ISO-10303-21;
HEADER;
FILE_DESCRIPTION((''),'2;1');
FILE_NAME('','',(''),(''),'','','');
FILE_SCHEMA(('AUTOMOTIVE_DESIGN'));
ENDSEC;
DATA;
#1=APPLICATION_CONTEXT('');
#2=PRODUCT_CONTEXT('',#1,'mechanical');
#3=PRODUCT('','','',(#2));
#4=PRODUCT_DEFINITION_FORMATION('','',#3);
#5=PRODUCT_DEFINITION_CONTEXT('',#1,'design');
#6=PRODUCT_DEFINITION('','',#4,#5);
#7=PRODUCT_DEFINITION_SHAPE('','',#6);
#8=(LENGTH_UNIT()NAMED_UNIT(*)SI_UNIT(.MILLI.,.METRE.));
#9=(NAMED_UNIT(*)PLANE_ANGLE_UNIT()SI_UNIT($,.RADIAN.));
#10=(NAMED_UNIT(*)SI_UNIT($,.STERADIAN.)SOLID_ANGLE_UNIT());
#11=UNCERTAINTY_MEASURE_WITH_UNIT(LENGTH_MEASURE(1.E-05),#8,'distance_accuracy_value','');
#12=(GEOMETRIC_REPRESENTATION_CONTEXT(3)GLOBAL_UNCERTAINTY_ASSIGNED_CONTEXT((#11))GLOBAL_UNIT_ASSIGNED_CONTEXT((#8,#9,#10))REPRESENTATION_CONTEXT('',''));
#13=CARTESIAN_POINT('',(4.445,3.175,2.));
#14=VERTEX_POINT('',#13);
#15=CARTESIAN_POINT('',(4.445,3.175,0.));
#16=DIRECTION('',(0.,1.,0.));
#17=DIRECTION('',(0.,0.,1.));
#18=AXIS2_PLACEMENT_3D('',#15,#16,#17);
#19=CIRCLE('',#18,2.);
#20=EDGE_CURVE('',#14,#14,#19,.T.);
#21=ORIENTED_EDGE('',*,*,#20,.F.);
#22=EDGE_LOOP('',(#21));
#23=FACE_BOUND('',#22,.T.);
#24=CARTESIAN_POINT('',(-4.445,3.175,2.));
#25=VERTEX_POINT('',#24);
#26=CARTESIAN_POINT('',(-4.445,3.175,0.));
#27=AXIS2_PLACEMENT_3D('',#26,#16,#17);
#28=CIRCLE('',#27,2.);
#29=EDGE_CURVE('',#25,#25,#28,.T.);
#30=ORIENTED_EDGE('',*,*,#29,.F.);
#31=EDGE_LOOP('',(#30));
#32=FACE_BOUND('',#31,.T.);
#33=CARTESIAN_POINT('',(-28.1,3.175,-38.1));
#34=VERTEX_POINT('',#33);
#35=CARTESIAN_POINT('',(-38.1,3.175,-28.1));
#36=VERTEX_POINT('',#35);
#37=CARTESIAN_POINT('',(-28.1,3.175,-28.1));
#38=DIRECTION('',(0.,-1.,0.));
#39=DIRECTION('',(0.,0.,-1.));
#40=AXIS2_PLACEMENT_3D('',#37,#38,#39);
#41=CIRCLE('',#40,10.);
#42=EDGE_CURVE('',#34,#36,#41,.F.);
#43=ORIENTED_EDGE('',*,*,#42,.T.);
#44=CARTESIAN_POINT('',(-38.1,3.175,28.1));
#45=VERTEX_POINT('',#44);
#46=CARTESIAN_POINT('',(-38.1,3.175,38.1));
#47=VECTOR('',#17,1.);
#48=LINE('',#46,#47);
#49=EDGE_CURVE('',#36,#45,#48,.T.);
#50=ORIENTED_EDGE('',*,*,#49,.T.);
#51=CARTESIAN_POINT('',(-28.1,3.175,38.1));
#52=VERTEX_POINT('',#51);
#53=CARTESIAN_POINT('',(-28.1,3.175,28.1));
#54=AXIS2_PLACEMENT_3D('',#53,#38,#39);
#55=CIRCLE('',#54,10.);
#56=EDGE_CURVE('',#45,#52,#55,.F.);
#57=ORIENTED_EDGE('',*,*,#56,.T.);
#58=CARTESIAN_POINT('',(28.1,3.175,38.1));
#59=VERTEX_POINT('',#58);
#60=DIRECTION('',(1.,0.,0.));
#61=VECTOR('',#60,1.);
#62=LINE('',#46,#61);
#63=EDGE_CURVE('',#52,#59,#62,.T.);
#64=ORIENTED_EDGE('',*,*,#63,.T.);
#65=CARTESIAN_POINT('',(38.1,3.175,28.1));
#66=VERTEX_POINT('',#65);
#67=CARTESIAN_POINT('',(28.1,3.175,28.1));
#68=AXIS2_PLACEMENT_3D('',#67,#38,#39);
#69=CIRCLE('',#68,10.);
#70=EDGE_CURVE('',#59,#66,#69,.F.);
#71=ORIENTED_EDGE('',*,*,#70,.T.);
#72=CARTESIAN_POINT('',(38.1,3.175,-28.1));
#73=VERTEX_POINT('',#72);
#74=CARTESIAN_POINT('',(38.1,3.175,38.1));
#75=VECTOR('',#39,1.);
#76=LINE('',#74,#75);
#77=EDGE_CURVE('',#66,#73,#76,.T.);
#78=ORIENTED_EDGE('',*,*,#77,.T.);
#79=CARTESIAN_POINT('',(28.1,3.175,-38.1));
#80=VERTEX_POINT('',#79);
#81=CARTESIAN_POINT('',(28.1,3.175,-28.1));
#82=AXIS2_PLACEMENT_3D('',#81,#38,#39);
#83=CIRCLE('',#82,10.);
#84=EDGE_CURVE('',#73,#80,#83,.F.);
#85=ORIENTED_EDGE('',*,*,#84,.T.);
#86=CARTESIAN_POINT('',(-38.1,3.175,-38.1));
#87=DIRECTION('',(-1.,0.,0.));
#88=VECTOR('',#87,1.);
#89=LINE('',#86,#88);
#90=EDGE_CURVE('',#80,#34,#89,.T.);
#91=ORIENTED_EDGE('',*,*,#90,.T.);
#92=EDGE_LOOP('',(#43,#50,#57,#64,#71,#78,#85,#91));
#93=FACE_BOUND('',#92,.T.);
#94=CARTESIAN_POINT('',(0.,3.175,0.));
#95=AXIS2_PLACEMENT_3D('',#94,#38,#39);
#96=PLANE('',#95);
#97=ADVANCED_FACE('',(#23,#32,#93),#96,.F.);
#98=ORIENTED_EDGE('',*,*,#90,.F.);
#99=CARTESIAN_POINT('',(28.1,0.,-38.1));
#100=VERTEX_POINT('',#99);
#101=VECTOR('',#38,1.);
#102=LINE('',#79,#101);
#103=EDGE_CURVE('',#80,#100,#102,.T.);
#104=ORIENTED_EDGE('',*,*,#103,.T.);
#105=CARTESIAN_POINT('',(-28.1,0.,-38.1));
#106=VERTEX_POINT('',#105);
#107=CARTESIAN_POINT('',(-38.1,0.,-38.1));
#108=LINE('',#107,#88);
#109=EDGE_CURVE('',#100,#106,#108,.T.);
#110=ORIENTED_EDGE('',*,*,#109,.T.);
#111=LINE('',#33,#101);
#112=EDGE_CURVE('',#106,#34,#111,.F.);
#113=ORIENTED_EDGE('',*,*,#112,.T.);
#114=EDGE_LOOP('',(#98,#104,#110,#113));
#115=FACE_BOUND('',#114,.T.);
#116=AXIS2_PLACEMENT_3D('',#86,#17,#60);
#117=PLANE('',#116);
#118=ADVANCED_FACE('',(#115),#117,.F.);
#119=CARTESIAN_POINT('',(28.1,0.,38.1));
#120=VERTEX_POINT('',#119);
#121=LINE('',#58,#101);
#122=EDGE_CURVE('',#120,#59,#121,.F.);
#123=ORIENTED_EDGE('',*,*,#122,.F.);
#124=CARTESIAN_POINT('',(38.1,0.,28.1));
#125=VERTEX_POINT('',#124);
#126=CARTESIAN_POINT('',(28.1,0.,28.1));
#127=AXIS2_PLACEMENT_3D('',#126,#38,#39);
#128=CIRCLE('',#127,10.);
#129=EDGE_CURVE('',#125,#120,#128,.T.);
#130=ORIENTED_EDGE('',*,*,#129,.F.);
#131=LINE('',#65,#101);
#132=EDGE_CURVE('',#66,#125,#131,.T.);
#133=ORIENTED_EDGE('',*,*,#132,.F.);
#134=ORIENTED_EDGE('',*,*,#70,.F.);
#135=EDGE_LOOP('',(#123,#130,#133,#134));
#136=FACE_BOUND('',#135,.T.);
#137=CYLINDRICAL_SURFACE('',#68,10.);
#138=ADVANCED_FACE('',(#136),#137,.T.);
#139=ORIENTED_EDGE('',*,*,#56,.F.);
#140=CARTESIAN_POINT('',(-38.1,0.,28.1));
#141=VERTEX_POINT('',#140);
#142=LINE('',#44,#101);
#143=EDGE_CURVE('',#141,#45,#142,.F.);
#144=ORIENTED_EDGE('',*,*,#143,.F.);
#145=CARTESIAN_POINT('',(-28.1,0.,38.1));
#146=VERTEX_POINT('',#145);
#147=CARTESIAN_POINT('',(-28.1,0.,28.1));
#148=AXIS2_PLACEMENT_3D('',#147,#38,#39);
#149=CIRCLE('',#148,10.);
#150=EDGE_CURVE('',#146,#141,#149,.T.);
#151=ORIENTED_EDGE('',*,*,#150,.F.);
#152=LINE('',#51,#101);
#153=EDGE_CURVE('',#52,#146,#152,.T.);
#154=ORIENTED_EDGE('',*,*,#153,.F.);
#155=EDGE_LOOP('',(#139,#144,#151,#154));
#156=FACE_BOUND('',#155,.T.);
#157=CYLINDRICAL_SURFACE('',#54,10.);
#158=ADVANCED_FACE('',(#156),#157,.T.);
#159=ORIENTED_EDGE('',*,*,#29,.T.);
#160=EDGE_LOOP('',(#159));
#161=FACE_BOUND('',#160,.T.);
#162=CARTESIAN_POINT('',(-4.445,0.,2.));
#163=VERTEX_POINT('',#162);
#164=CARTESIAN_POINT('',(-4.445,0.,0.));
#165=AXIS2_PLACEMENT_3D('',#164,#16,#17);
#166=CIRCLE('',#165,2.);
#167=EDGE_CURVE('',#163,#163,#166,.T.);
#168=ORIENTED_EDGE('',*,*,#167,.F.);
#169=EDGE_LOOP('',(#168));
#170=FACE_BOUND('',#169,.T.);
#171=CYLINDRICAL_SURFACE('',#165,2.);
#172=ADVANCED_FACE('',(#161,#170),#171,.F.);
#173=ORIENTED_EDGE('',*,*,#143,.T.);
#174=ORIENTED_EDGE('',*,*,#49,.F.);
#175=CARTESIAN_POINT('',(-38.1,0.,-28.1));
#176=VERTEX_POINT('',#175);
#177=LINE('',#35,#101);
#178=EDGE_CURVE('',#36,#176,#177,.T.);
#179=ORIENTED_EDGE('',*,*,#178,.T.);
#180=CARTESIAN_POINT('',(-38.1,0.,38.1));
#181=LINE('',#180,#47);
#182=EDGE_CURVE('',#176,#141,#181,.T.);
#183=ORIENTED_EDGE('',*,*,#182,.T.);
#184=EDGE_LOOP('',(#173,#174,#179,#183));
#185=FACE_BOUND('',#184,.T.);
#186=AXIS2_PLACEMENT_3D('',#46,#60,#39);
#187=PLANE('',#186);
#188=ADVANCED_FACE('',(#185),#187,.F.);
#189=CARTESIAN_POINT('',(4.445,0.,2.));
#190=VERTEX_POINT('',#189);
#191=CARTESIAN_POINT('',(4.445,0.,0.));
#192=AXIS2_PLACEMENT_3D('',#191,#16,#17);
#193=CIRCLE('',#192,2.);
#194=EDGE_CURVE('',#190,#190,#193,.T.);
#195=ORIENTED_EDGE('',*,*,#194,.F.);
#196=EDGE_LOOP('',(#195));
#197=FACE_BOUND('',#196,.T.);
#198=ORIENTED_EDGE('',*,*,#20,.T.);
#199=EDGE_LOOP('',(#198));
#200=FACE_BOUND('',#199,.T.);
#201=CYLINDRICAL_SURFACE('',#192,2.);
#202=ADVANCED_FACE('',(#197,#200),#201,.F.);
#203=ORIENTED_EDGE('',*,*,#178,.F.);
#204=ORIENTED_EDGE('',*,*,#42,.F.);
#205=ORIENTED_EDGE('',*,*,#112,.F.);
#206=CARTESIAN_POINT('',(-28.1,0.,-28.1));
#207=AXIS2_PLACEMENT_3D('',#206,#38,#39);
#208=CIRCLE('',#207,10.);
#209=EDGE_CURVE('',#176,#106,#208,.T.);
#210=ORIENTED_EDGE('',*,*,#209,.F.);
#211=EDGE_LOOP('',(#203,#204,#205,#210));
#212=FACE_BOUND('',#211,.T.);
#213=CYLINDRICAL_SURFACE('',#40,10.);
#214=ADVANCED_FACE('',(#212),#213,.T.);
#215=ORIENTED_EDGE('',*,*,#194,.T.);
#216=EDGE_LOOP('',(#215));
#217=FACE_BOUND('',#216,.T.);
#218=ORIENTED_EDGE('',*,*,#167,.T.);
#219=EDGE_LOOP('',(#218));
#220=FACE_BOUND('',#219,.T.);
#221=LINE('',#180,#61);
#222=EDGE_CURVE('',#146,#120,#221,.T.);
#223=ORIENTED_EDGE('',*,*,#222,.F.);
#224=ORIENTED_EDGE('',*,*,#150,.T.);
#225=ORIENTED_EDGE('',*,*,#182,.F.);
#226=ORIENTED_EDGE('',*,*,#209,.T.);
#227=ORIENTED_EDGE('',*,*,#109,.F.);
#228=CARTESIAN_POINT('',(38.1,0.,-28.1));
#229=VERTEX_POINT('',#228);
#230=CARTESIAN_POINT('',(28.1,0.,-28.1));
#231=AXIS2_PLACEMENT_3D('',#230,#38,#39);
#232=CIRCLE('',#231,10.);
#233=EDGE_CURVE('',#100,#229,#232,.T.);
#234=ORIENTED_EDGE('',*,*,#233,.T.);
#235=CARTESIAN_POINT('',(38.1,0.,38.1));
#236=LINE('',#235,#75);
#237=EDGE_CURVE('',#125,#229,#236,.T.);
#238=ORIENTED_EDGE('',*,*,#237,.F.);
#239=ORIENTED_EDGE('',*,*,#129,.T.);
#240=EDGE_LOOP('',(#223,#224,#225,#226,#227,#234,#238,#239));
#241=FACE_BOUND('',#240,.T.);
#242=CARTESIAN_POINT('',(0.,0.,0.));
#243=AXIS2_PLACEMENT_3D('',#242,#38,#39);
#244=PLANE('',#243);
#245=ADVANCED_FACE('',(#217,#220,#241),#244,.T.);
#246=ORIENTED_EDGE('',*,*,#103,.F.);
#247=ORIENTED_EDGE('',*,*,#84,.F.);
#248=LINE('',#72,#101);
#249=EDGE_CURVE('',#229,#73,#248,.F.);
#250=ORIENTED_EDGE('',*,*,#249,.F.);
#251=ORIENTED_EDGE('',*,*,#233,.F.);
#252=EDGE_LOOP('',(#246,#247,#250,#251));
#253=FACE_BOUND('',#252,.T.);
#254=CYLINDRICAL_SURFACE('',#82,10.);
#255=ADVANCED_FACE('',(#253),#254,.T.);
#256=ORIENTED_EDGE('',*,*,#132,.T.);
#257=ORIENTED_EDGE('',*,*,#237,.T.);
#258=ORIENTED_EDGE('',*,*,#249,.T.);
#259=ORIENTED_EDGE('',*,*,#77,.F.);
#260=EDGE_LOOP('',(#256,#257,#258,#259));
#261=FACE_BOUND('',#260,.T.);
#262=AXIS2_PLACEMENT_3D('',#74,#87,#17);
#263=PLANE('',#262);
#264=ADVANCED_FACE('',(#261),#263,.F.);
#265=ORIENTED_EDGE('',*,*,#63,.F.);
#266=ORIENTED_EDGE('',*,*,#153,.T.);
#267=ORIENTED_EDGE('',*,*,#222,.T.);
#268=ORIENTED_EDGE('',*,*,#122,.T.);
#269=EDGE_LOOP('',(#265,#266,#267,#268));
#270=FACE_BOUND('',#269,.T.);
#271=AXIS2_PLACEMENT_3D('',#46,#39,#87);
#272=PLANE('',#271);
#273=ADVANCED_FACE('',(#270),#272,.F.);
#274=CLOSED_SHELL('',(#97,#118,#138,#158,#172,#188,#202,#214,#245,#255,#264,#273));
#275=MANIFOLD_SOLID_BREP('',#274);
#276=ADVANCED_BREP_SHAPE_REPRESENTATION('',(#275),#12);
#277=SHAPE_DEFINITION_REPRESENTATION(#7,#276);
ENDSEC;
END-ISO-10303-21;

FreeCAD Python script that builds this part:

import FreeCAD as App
import Part
import Sketcher
Q = App.Units.Quantity


def edges_at(feature, points):
    """Names of the edges that pass closest to the given points."""
    edges = feature.Shape.Edges
    near = lambda p: min(range(len(edges)), key=lambda i: edges[i].distToShape(Part.Vertex(*p))[0])
    return sorted({f"Edge{near(p) + 1}" for p in points})

doc = App.newDocument("Part")
body = doc.addObject("PartDesign::Body", "Body")

# Sketch on XZ plane
sketch1 = doc.addObject("Sketcher::SketchObject", "Sketch")
body.addObject(sketch1)
sketch1.AttachmentSupport = (doc.XZ_Plane, [""])
sketch1.MapMode = "FlatFace"
sketch1.addGeometry(Part.LineSegment(App.Vector(-38, -38, 0), App.Vector(-38, 38, 0)), False)
sketch1.addGeometry(Part.LineSegment(App.Vector(-38, 38, 0), App.Vector(38, 38, 0)), False)
sketch1.addGeometry(Part.LineSegment(App.Vector(38, 38, 0), App.Vector(38, -38, 0)), False)
sketch1.addGeometry(Part.LineSegment(App.Vector(38, -38, 0), App.Vector(-38, -38, 0)), False)
sketch1.addConstraint(Sketcher.Constraint("Coincident", 0, 2, 1, 1))
sketch1.addConstraint(Sketcher.Constraint("Coincident", 1, 2, 2, 1))
sketch1.addConstraint(Sketcher.Constraint("Coincident", 2, 2, 3, 1))
sketch1.addConstraint(Sketcher.Constraint("Coincident", 3, 2, 0, 1))
sketch1.addConstraint(Sketcher.Constraint("Vertical", 0))
sketch1.addConstraint(Sketcher.Constraint("Horizontal", 1))
sketch1.addConstraint(Sketcher.Constraint("Vertical", 2))
sketch1.addConstraint(Sketcher.Constraint("Horizontal", 3))
sketch1.addConstraint(Sketcher.Constraint("Symmetric", 0, 2, 2, 2, -1, 1))
sketch1.addConstraint(Sketcher.Constraint("Equal", 3, 0))
sketch1.addConstraint(Sketcher.Constraint("DistanceX", 1, 1, 1, 2, Q("76.2 mm")))
pad1 = doc.addObject("PartDesign::Pad", "Pad")
body.addObject(pad1)
pad1.Profile = sketch1
pad1.Length = 3.175
pad1.Reversed = True
doc.recompute()

fillet = doc.addObject("PartDesign::Fillet", "Fillet")
body.addObject(fillet)
fillet.Base = (pad1, edges_at(pad1, [(-38.1, 1.587, 38.1)]))
fillet.Radius = 10
doc.recompute()

fillet2 = doc.addObject("PartDesign::Fillet", "Fillet001")
body.addObject(fillet2)
fillet2.Base = (fillet, edges_at(fillet, [(-38.1, 1.587, -38.1)]))
fillet2.Radius = 10
doc.recompute()

fillet3 = doc.addObject("PartDesign::Fillet", "Fillet002")
body.addObject(fillet3)
fillet3.Base = (fillet2, edges_at(fillet2, [(38.1, 1.587, -38.1)]))
fillet3.Radius = 10
doc.recompute()

fillet4 = doc.addObject("PartDesign::Fillet", "Fillet003")
body.addObject(fillet4)
fillet4.Base = (fillet3, edges_at(fillet3, [(38.1, 1.587, 38.1)]))
fillet4.Radius = 10

# Sketch on XZ plane
sketch2 = doc.addObject("Sketcher::SketchObject", "Sketch001")
body.addObject(sketch2)
sketch2.AttachmentSupport = (doc.XZ_Plane, [""])
sketch2.MapMode = "FlatFace"
sketch2.AttachmentOffset = App.Placement(App.Vector(0, 0, -3.175), App.Rotation())
sketch2.addGeometry(Part.Circle(App.Vector(4.4, 0, 0), App.Vector(0, 0, 1), 2), False)
sketch2.addGeometry(Part.Circle(App.Vector(-4.4, 0, 0), App.Vector(0, 0, 1), 2), False)
sketch2.addConstraint(Sketcher.Constraint("Equal", 0, 1))
sketch2.addConstraint(Sketcher.Constraint("Symmetric", 0, 3, 1, 3, -1, 1))
sketch2.addConstraint(Sketcher.Constraint("PointOnObject", 0, 3, -1))
sketch2.addConstraint(Sketcher.Constraint("Diameter", 0, Q("4 mm")))
sketch2.addConstraint(Sketcher.Constraint("DistanceX", 1, 3, 0, 3, Q("8.89 mm")))
pocket1 = doc.addObject("PartDesign::Pocket", "Pocket")
body.addObject(pocket1)
pocket1.Profile = sketch2
pocket1.Type = "ThroughAll"
pocket1.Reversed = True

doc.recompute()
